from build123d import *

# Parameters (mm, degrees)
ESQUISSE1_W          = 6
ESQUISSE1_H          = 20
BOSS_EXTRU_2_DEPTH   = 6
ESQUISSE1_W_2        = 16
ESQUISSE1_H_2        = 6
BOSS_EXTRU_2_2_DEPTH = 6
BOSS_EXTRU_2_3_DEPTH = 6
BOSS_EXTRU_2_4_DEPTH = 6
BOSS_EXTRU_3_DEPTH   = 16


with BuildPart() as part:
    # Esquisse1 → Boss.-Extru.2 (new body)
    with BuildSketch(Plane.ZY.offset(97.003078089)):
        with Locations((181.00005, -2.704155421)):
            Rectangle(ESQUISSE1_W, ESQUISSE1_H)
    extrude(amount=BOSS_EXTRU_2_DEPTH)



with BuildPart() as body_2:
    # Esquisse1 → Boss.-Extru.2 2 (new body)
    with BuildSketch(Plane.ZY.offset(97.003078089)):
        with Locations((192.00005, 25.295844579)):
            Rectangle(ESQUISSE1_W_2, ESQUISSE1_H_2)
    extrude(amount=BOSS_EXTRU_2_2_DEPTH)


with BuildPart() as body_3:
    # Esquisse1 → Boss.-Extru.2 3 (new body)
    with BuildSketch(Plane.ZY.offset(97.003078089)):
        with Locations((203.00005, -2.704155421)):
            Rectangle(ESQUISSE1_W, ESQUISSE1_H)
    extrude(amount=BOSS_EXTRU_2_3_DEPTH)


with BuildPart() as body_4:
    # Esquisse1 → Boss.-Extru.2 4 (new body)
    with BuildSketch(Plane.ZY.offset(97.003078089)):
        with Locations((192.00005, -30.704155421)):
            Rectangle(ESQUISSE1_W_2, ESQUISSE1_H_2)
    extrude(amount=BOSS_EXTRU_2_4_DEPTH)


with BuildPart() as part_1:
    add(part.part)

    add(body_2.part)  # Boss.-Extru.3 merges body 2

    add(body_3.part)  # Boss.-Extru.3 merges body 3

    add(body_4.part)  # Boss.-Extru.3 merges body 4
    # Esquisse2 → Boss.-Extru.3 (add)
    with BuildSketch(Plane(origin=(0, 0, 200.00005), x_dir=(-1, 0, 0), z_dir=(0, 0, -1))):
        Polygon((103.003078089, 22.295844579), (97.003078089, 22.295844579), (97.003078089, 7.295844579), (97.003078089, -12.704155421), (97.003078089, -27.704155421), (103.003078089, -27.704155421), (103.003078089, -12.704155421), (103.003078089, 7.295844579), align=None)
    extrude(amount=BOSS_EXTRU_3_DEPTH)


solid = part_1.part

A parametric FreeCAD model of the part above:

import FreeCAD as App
import Part
import Sketcher
from FreeCAD import Vector
Q = App.Units.Quantity


def add_polygon(sketch, points):
    """Adds a closed chain of lines whose ends are joined by coincident constraints."""
    first, n = sketch.GeometryCount, len(points)
    for a, b in zip(points, points[1:] + points[:1]):
        sketch.addGeometry(Part.LineSegment(App.Vector(*a, 0), App.Vector(*b, 0)), False)
    for i in range(n):
        sketch.addConstraint(Sketcher.Constraint("Coincident", first + i, 2, first + (i + 1) % n, 1))

doc = App.newDocument("Part")
body = doc.addObject("PartDesign::Body", "Body")

# Sketch on YZ plane
sketch1 = doc.addObject("Sketcher::SketchObject", "Sketch")
body.addObject(sketch1)
sketch1.AttachmentSupport = (doc.YZ_Plane, [""])
sketch1.MapMode = "FlatFace"
sketch1.AttachmentOffset = App.Placement(Vector(0, 0, -97.003078), App.Rotation())
add_polygon(sketch1, [(7, 178), (-13, 178), (-13, 184), (7, 184)])  # lines 0-3
sketch1.addConstraint([
    Sketcher.Constraint("Horizontal", 0),
    Sketcher.Constraint("Vertical", 1),
    Sketcher.Constraint("Horizontal", 2),
    Sketcher.Constraint("Vertical", 3),
    Sketcher.Constraint("DistanceX", 0, 2, 0, 1, Q("20 mm")),
    Sketcher.Constraint("DistanceY", 1, 1, 1, 2, Q("6 mm")),
    Sketcher.Constraint("DistanceY", -1, 1, 0, 2, Q("178.00005 mm")),
    Sketcher.Constraint("DistanceX", 0, 2, -1, 1, Q("12.704155 mm")),
])
pad1 = doc.addObject("PartDesign::Pad", "Pad")
body.addObject(pad1)
pad1.Profile = sketch1
pad1.Length = 6
pad1.Reversed = True
body2 = doc.addObject("PartDesign::Body", "Body001")

# Sketch on YZ plane
sketch2 = doc.addObject("Sketcher::SketchObject", "Sketch001")
body2.addObject(sketch2)
sketch2.AttachmentSupport = (doc.getObject("YZ_Plane001"), [""])
sketch2.MapMode = "FlatFace"
sketch2.AttachmentOffset = App.Placement(Vector(0, 0, -97.003078), App.Rotation())
add_polygon(sketch2, [(28, 184), (22, 184), (22, 200), (28, 200)])  # lines 0-3
sketch2.addConstraint([
    Sketcher.Constraint("Horizontal", 0),
    Sketcher.Constraint("Vertical", 1),
    Sketcher.Constraint("Horizontal", 2),
    Sketcher.Constraint("Vertical", 3),
    Sketcher.Constraint("DistanceX", 0, 2, 0, 1, Q("6 mm")),
    Sketcher.Constraint("DistanceY", 1, 1, 1, 2, Q("16 mm")),
    Sketcher.Constraint("DistanceY", -1, 1, 0, 2, Q("184.00005 mm")),
    Sketcher.Constraint("DistanceX", -1, 1, 0, 2, Q("22.295845 mm")),
])
pad2 = doc.addObject("PartDesign::Pad", "Pad001")
body2.addObject(pad2)
pad2.Profile = sketch2
pad2.Length = 6
pad2.Reversed = True
body3 = doc.addObject("PartDesign::Body", "Body002")

# Sketch on YZ plane
sketch3 = doc.addObject("Sketcher::SketchObject", "Sketch002")
body3.addObject(sketch3)
sketch3.AttachmentSupport = (doc.getObject("YZ_Plane002"), [""])
sketch3.MapMode = "FlatFace"
sketch3.AttachmentOffset = App.Placement(Vector(0, 0, -97.003078), App.Rotation())
add_polygon(sketch3, [(7, 200), (-13, 200), (-13, 206), (7, 206)])  # lines 0-3
sketch3.addConstraint([
    Sketcher.Constraint("Horizontal", 0),
    Sketcher.Constraint("Vertical", 1),
    Sketcher.Constraint("Horizontal", 2),
    Sketcher.Constraint("Vertical", 3),
    Sketcher.Constraint("DistanceX", 0, 2, 0, 1, Q("20 mm")),
    Sketcher.Constraint("DistanceY", 1, 1, 1, 2, Q("6 mm")),
    Sketcher.Constraint("DistanceY", -1, 1, 0, 2, Q("200.00005 mm")),
    Sketcher.Constraint("DistanceX", 0, 2, -1, 1, Q("12.704155 mm")),
])
pad3 = doc.addObject("PartDesign::Pad", "Pad002")
body3.addObject(pad3)
pad3.Profile = sketch3
pad3.Length = 6
pad3.Reversed = True
body4 = doc.addObject("PartDesign::Body", "Body003")

# Sketch on YZ plane
sketch4 = doc.addObject("Sketcher::SketchObject", "Sketch003")
body4.addObject(sketch4)
sketch4.AttachmentSupport = (doc.getObject("YZ_Plane003"), [""])
sketch4.MapMode = "FlatFace"
sketch4.AttachmentOffset = App.Placement(Vector(0, 0, -97.003078), App.Rotation())
add_polygon(sketch4, [(-28, 184), (-34, 184), (-34, 200), (-28, 200)])  # lines 0-3
sketch4.addConstraint([
    Sketcher.Constraint("Horizontal", 0),
    Sketcher.Constraint("Vertical", 1),
    Sketcher.Constraint("Horizontal", 2),
    Sketcher.Constraint("Vertical", 3),
    Sketcher.Constraint("DistanceX", 0, 2, 0, 1, Q("6 mm")),
    Sketcher.Constraint("DistanceY", 1, 1, 1, 2, Q("16 mm")),
    Sketcher.Constraint("DistanceY", -1, 1, 0, 2, Q("184.00005 mm")),
    Sketcher.Constraint("DistanceX", 0, 2, -1, 1, Q("33.704155 mm")),
])
pad4 = doc.addObject("PartDesign::Pad", "Pad003")
body4.addObject(pad4)
pad4.Profile = sketch4
pad4.Length = 6
pad4.Reversed = True
body.AllowCompound = True
doc.recompute()

boolean = doc.addObject("PartDesign::Boolean", "Boolean")
body.addObject(boolean)
boolean.Type = "Fuse"
boolean.addObjects([body2])
doc.recompute()

boolean2 = doc.addObject("PartDesign::Boolean", "Boolean001")
body.addObject(boolean2)
boolean2.Type = "Fuse"
boolean2.addObjects([body3])
doc.recompute()

boolean3 = doc.addObject("PartDesign::Boolean", "Boolean002")
body.addObject(boolean3)
boolean3.Type = "Fuse"
boolean3.addObjects([body4])

# Sketch on XY plane
sketch5 = doc.addObject("Sketcher::SketchObject", "Sketch004")
body.addObject(sketch5)
sketch5.AttachmentSupport = (doc.XY_Plane, [""])
sketch5.MapMode = "FlatFace"
sketch5.AttachmentOffset = App.Placement(Vector(0, 0, 200.00005), App.Rotation())
add_polygon(sketch5, [(-103, 22), (-97, 22), (-97, -28), (-103, -28)])  # lines 0-3
sketch5.addConstraint([
    Sketcher.Constraint("Horizontal", 0),
    Sketcher.Constraint("Vertical", 1),
    Sketcher.Constraint("Horizontal", 2),
    Sketcher.Constraint("Vertical", 3),
    Sketcher.Constraint("DistanceX", 0, 1, 0, 2, Q("6 mm")),
    Sketcher.Constraint("DistanceY", 1, 2, 1, 1, Q("50 mm")),
    Sketcher.Constraint("DistanceX", 0, 2, -1, 1, Q("97.003078 mm")),
    Sketcher.Constraint("DistanceY", -1, 1, 0, 2, Q("22.295845 mm")),
])
pad5 = doc.addObject("PartDesign::Pad", "Pad004")
body.addObject(pad5)
pad5.Profile = sketch5
pad5.Length = 16
pad5.Reversed = True

doc.recompute()
